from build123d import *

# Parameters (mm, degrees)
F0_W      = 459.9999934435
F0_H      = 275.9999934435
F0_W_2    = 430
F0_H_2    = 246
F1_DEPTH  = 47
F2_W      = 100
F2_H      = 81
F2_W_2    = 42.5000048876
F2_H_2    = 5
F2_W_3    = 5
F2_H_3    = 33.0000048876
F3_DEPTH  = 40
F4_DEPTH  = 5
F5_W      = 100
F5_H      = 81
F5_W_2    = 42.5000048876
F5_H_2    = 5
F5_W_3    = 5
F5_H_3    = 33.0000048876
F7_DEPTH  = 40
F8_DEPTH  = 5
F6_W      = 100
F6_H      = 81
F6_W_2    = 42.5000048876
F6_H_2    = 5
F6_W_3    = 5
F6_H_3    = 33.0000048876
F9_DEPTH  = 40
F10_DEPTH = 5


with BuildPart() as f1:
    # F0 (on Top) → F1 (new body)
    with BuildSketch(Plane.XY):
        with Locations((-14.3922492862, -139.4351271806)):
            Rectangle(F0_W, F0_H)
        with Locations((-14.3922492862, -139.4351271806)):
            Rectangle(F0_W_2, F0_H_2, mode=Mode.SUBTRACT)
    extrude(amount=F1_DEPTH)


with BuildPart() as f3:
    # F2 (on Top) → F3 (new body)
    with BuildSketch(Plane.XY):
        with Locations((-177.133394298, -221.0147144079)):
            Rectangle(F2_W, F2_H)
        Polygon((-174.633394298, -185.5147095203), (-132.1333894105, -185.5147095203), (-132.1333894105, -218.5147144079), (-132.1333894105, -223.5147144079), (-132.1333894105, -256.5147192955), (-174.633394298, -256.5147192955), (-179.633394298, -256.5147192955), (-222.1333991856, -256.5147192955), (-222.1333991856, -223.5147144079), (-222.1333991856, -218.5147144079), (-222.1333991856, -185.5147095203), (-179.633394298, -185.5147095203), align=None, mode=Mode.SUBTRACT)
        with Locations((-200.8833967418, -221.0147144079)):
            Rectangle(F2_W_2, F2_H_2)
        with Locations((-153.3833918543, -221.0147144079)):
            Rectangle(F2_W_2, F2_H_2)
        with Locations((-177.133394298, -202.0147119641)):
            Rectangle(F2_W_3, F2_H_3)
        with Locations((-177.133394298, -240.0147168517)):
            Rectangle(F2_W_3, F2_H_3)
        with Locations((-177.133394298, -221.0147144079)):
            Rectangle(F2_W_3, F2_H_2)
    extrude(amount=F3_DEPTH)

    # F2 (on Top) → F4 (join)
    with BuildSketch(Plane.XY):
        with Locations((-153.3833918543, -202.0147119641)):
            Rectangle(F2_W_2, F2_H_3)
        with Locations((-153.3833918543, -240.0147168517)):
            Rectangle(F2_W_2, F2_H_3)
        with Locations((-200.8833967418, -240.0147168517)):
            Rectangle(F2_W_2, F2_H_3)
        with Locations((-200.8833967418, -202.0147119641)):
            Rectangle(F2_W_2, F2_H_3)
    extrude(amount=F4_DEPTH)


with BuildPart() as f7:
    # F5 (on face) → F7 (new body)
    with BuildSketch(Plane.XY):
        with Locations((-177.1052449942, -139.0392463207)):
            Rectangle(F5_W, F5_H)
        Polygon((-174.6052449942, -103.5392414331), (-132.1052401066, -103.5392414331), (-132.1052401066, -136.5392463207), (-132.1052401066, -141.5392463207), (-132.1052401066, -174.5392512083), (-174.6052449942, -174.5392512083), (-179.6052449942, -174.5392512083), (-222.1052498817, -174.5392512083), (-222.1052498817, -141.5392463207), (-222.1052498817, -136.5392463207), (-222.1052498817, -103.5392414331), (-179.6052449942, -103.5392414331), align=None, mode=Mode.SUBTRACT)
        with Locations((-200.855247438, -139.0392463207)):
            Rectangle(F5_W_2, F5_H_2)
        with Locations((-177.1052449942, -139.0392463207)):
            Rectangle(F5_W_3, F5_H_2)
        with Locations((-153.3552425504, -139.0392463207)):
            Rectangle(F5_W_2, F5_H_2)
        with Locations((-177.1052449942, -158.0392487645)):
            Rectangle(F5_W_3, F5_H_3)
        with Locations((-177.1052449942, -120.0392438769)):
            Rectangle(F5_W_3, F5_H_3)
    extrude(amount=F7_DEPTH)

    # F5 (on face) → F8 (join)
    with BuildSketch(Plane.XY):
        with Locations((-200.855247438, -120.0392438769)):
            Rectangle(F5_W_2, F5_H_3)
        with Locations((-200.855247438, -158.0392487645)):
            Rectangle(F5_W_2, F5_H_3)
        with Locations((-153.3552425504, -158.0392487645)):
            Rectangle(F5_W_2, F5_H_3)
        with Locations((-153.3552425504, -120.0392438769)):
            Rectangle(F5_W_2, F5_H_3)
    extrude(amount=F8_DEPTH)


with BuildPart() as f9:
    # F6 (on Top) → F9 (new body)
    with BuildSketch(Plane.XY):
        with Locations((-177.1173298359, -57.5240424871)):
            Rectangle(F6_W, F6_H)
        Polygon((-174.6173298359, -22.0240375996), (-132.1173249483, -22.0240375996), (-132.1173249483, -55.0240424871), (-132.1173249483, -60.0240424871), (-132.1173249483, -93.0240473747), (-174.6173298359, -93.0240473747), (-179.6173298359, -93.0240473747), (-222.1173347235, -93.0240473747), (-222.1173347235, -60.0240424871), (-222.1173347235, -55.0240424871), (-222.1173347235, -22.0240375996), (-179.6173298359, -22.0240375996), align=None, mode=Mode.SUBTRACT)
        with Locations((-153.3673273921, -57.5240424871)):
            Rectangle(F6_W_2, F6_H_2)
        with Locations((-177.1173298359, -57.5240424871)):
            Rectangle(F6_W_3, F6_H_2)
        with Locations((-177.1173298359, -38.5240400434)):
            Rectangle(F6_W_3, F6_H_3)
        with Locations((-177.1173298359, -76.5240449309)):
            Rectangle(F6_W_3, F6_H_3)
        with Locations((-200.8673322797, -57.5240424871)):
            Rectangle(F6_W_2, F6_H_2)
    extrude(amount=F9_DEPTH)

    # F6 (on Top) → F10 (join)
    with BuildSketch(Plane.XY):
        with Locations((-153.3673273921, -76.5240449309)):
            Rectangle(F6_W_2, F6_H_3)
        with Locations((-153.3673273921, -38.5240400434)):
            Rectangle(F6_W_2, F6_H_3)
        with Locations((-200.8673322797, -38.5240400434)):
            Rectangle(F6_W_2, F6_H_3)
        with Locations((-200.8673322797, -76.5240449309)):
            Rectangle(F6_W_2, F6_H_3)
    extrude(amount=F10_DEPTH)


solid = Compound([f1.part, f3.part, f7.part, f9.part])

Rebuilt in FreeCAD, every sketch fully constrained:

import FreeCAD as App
import Part
import Sketcher
from FreeCAD import Vector

doc = App.newDocument("Part")
body = doc.addObject("PartDesign::Body", "Body")

sketch1 = body.newObject("Sketcher::SketchObject", "Sketch")
sketch1.AttachmentSupport = (doc.getObject("XY_Plane"), [""])
sketch1.MapMode = "FlatFace"
sketch1.addGeometry([
    Part.LineSegment(Vector(-244, -1, 0), Vector(-244, -277, 0)),
    Part.LineSegment(Vector(-244, -277, 0), Vector(216, -277, 0)),
    Part.LineSegment(Vector(216, -277, 0), Vector(216, -1, 0)),
    Part.LineSegment(Vector(216, -1, 0), Vector(-244, -1, 0)),
    Part.LineSegment(Vector(201, -262, 0), Vector(-229, -262, 0)),
    Part.LineSegment(Vector(-229, -262, 0), Vector(-229, -16, 0)),
    Part.LineSegment(Vector(-229, -16, 0), Vector(201, -16, 0)),
    Part.LineSegment(Vector(201, -16, 0), Vector(201, -262, 0)),
], False)
sketch1.addConstraint([
    Sketcher.Constraint("Coincident", 0, 2, 1, 1),
    Sketcher.Constraint("Coincident", 1, 2, 2, 1),
    Sketcher.Constraint("Coincident", 2, 2, 3, 1),
    Sketcher.Constraint("Coincident", 3, 2, 0, 1),
    Sketcher.Constraint("Coincident", 4, 2, 5, 1),
    Sketcher.Constraint("Coincident", 5, 2, 6, 1),
    Sketcher.Constraint("Coincident", 6, 2, 7, 1),
    Sketcher.Constraint("Coincident", 7, 2, 4, 1),
    Sketcher.Constraint("Vertical", 0),
    Sketcher.Constraint("Horizontal", 1),
    Sketcher.Constraint("Vertical", 2),
    Sketcher.Constraint("Horizontal", 3),
    Sketcher.Constraint("Horizontal", 4),
    Sketcher.Constraint("Vertical", 5),
    Sketcher.Constraint("Horizontal", 6),
    Sketcher.Constraint("Vertical", 7),
    Sketcher.Constraint("DistanceX", 4, 2, 4, 1, 430.0),
    Sketcher.Constraint("DistanceY", 5, 1, 5, 2, 246.0),
    Sketcher.Constraint("DistanceX", 1, 1, 1, 2, 459.999993),
    Sketcher.Constraint("DistanceY", 0, 2, 0, 1, 275.999993),
    Sketcher.Constraint("DistanceY", 2, 2, -1, 1, 1.43513),
    Sketcher.Constraint("DistanceX", 4, 2, -1, 1, 229.392249),
    Sketcher.Constraint("DistanceX", 0, 2, -1, 1, 244.392246),
    Sketcher.Constraint("DistanceY", 4, 2, -1, 1, 262.435127),
])
pad1 = body.newObject("PartDesign::Pad", "Pad")
pad1.Profile = sketch1
pad1.Length = 47
body2 = doc.addObject("PartDesign::Body", "Body001")

sketch2 = body2.newObject("Sketcher::SketchObject", "Sketch001")
sketch2.AttachmentSupport = (doc.getObject("XY_Plane001"), [""])
sketch2.MapMode = "FlatFace"
sketch2.addGeometry([
    Part.LineSegment(Vector(-227, -181, 0), Vector(-227, -262, 0)),
    Part.LineSegment(Vector(-227, -262, 0), Vector(-127, -262, 0)),
    Part.LineSegment(Vector(-127, -262, 0), Vector(-127, -181, 0)),
    Part.LineSegment(Vector(-127, -181, 0), Vector(-227, -181, 0)),
    Part.LineSegment(Vector(-222, -224, 0), Vector(-180, -224, 0)),
    Part.LineSegment(Vector(-180, -224, 0), Vector(-180, -257, 0)),
    Part.LineSegment(Vector(-180, -257, 0), Vector(-222, -257, 0)),
    Part.LineSegment(Vector(-222, -257, 0), Vector(-222, -224, 0)),
    Part.LineSegment(Vector(-175, -257, 0), Vector(-175, -224, 0)),
    Part.LineSegment(Vector(-175, -224, 0), Vector(-132, -224, 0)),
    Part.LineSegment(Vector(-132, -224, 0), Vector(-132, -257, 0)),
    Part.LineSegment(Vector(-132, -257, 0), Vector(-175, -257, 0)),
    Part.LineSegment(Vector(-180, -219, 0), Vector(-222, -219, 0)),
    Part.LineSegment(Vector(-222, -219, 0), Vector(-222, -186, 0)),
    Part.LineSegment(Vector(-222, -186, 0), Vector(-180, -186, 0)),
    Part.LineSegment(Vector(-180, -186, 0), Vector(-180, -219, 0)),
    Part.LineSegment(Vector(-132, -219, 0), Vector(-175, -219, 0)),
    Part.LineSegment(Vector(-175, -219, 0), Vector(-175, -186, 0)),
    Part.LineSegment(Vector(-175, -186, 0), Vector(-132, -186, 0)),
    Part.LineSegment(Vector(-132, -186, 0), Vector(-132, -219, 0)),
], False)
sketch2.addConstraint([
    Sketcher.Constraint("Coincident", 0, 2, 1, 1),
    Sketcher.Constraint("Coincident", 1, 2, 2, 1),
    Sketcher.Constraint("Coincident", 2, 2, 3, 1),
    Sketcher.Constraint("Coincident", 3, 2, 0, 1),
    Sketcher.Constraint("Coincident", 4, 2, 5, 1),
    Sketcher.Constraint("Coincident", 5, 2, 6, 1),
    Sketcher.Constraint("Coincident", 6, 2, 7, 1),
    Sketcher.Constraint("Coincident", 7, 2, 4, 1),
    Sketcher.Constraint("Coincident", 8, 2, 9, 1),
    Sketcher.Constraint("Coincident", 9, 2, 10, 1),
    Sketcher.Constraint("Coincident", 10, 2, 11, 1),
    Sketcher.Constraint("Coincident", 11, 2, 8, 1),
    Sketcher.Constraint("Coincident", 12, 2, 13, 1),
    Sketcher.Constraint("Coincident", 13, 2, 14, 1),
    Sketcher.Constraint("Coincident", 14, 2, 15, 1),
    Sketcher.Constraint("Coincident", 15, 2, 12, 1),
    Sketcher.Constraint("Coincident", 16, 2, 17, 1),
    Sketcher.Constraint("Coincident", 17, 2, 18, 1),
    Sketcher.Constraint("Coincident", 18, 2, 19, 1),
    Sketcher.Constraint("Coincident", 19, 2, 16, 1),
    Sketcher.Constraint("Vertical", 0),
    Sketcher.Constraint("Horizontal", 1),
    Sketcher.Constraint("Vertical", 2),
    Sketcher.Constraint("Horizontal", 3),
    Sketcher.Constraint("Horizontal", 4),
    Sketcher.Constraint("Vertical", 5),
    Sketcher.Constraint("Horizontal", 6),
    Sketcher.Constraint("Vertical", 7),
    Sketcher.Constraint("Vertical", 8),
    Sketcher.Constraint("Horizontal", 9),
    Sketcher.Constraint("Vertical", 10),
    Sketcher.Constraint("Horizontal", 11),
    Sketcher.Constraint("Horizontal", 12),
    Sketcher.Constraint("Vertical", 13),
    Sketcher.Constraint("Horizontal", 14),
    Sketcher.Constraint("Vertical", 15),
    Sketcher.Constraint("Horizontal", 16),
    Sketcher.Constraint("Vertical", 17),
    Sketcher.Constraint("Horizontal", 18),
    Sketcher.Constraint("Vertical", 19),
    Sketcher.Constraint("Horizontal", 7, 2, 8, 2),
    Sketcher.Constraint("Horizontal", 6, 2, 10, 2),
    Sketcher.Constraint("Horizontal", 15, 2, 16, 2),
    Sketcher.Constraint("Horizontal", 14, 2, 17, 2),
    Sketcher.Constraint("Vertical", 7, 2, 12, 2),
    Sketcher.Constraint("Vertical", 5, 2, 14, 2),
    Sketcher.Constraint("Vertical", 11, 2, 16, 2),
    Sketcher.Constraint("Vertical", 10, 2, 18, 2),
    Sketcher.Constraint("Equal", 6, 9),
    Sketcher.Constraint("Equal", 10, 13),
    Sketcher.Constraint("DistanceX", 1, 1, 1, 2, 100.0),
    Sketcher.Constraint("DistanceY", 0, 2, 0, 1, 81.0),
    Sketcher.Constraint("DistanceY", 0, 2, 4, 2, 38.0),
    Sketcher.Constraint("DistanceX", 4, 2, 8, 2, 5.0),
    Sketcher.Constraint("DistanceY", 7, 2, 12, 2, 5.0),
    Sketcher.Constraint("DistanceX", 0, 2, 4, 2, 47.5),
    Sketcher.Constraint("DistanceX", 6, 2, -1, 1, 222.133399),
    Sketcher.Constraint("DistanceX", 4, 1, 4, 2, 42.500005),
    Sketcher.Constraint("DistanceY", 5, 2, 5, 1, 33.000005),
    Sketcher.Constraint("DistanceY", 5, 2, -1, 1, 256.514719),
])
pad2 = body2.newObject("PartDesign::Pad", "Pad001")
pad2.Profile = sketch2
pad2.Length = 40

sketch3 = body2.newObject("Sketcher::SketchObject", "Sketch002")
sketch3.AttachmentSupport = (doc.getObject("XY_Plane001"), [""])
sketch3.MapMode = "FlatFace"
sketch3.addGeometry([
    Part.LineSegment(Vector(-175, -186, 0), Vector(-175, -219, 0)),
    Part.LineSegment(Vector(-175, -219, 0), Vector(-132, -219, 0)),
    Part.LineSegment(Vector(-132, -219, 0), Vector(-132, -186, 0)),
    Part.LineSegment(Vector(-132, -186, 0), Vector(-175, -186, 0)),
    Part.LineSegment(Vector(-175, -224, 0), Vector(-175, -257, 0)),
    Part.LineSegment(Vector(-175, -257, 0), Vector(-132, -257, 0)),
    Part.LineSegment(Vector(-132, -257, 0), Vector(-132, -224, 0)),
    Part.LineSegment(Vector(-132, -224, 0), Vector(-175, -224, 0)),
    Part.LineSegment(Vector(-222, -224, 0), Vector(-222, -257, 0)),
    Part.LineSegment(Vector(-222, -257, 0), Vector(-180, -257, 0)),
    Part.LineSegment(Vector(-180, -257, 0), Vector(-180, -224, 0)),
    Part.LineSegment(Vector(-180, -224, 0), Vector(-222, -224, 0)),
    Part.LineSegment(Vector(-222, -186, 0), Vector(-222, -219, 0)),
    Part.LineSegment(Vector(-222, -219, 0), Vector(-180, -219, 0)),
    Part.LineSegment(Vector(-180, -219, 0), Vector(-180, -186, 0)),
    Part.LineSegment(Vector(-180, -186, 0), Vector(-222, -186, 0)),
], False)
sketch3.addConstraint([
    Sketcher.Constraint("Coincident", 0, 2, 1, 1),
    Sketcher.Constraint("Coincident", 1, 2, 2, 1),
    Sketcher.Constraint("Coincident", 2, 2, 3, 1),
    Sketcher.Constraint("Coincident", 3, 2, 0, 1),
    Sketcher.Constraint("Coincident", 4, 2, 5, 1),
    Sketcher.Constraint("Coincident", 5, 2, 6, 1),
    Sketcher.Constraint("Coincident", 6, 2, 7, 1),
    Sketcher.Constraint("Coincident", 7, 2, 4, 1),
    Sketcher.Constraint("Coincident", 8, 2, 9, 1),
    Sketcher.Constraint("Coincident", 9, 2, 10, 1),
    Sketcher.Constraint("Coincident", 10, 2, 11, 1),
    Sketcher.Constraint("Coincident", 11, 2, 8, 1),
    Sketcher.Constraint("Coincident", 12, 2, 13, 1),
    Sketcher.Constraint("Coincident", 13, 2, 14, 1),
    Sketcher.Constraint("Coincident", 14, 2, 15, 1),
    Sketcher.Constraint("Coincident", 15, 2, 12, 1),
    Sketcher.Constraint("Vertical", 0),
    Sketcher.Constraint("Horizontal", 1),
    Sketcher.Constraint("Vertical", 2),
    Sketcher.Constraint("Horizontal", 3),
    Sketcher.Constraint("Vertical", 4),
    Sketcher.Constraint("Horizontal", 5),
    Sketcher.Constraint("Vertical", 6),
    Sketcher.Constraint("Horizontal", 7),
    Sketcher.Constraint("Vertical", 8),
    Sketcher.Constraint("Horizontal", 9),
    Sketcher.Constraint("Vertical", 10),
    Sketcher.Constraint("Horizontal", 11),
    Sketcher.Constraint("Vertical", 12),
    Sketcher.Constraint("Horizontal", 13),
    Sketcher.Constraint("Vertical", 14),
    Sketcher.Constraint("Horizontal", 15),
    Sketcher.Constraint("Horizontal", 5, 2, 8, 2),
    Sketcher.Constraint("Horizontal", 7, 2, 10, 2),
    Sketcher.Constraint("Horizontal", 1, 2, 12, 2),
    Sketcher.Constraint("Horizontal", 3, 2, 14, 2),
    Sketcher.Constraint("Vertical", 3, 2, 4, 2),
    Sketcher.Constraint("Vertical", 2, 2, 5, 2),
    Sketcher.Constraint("Vertical", 11, 2, 12, 2),
    Sketcher.Constraint("Vertical", 10, 2, 13, 2),
    Sketcher.Constraint("Equal", 7, 9),
    Sketcher.Constraint("Equal", 2, 4),
    Sketcher.Constraint("DistanceY", 6, 2, 1, 2, 5.0),
    Sketcher.Constraint("DistanceX", 9, 2, 4, 2, 5.0),
    Sketcher.Constraint("DistanceX", 8, 2, -1, 1, 222.133399),
    Sketcher.Constraint("DistanceX", 1, 1, 1, 2, 42.500005),
    Sketcher.Constraint("DistanceY", 0, 2, 0, 1, 33.000005),
    Sketcher.Constraint("DistanceY", 2, 2, -1, 1, 185.51471),
])
pad3 = body2.newObject("PartDesign::Pad", "Pad002")
pad3.Profile = sketch3
pad3.Length = 5
body3 = doc.addObject("PartDesign::Body", "Body002")

sketch4 = body3.newObject("Sketcher::SketchObject", "Sketch003")
sketch4.AttachmentSupport = (doc.getObject("XY_Plane002"), [""])
sketch4.MapMode = "FlatFace"
sketch4.addGeometry([
    Part.LineSegment(Vector(-227, -99, 0), Vector(-227, -180, 0)),
    Part.LineSegment(Vector(-227, -180, 0), Vector(-127, -180, 0)),
    Part.LineSegment(Vector(-127, -180, 0), Vector(-127, -99, 0)),
    Part.LineSegment(Vector(-127, -99, 0), Vector(-227, -99, 0)),
    Part.LineSegment(Vector(-222, -104, 0), Vector(-180, -104, 0)),
    Part.LineSegment(Vector(-180, -104, 0), Vector(-180, -137, 0)),
    Part.LineSegment(Vector(-180, -137, 0), Vector(-222, -137, 0)),
    Part.LineSegment(Vector(-222, -137, 0), Vector(-222, -104, 0)),
    Part.LineSegment(Vector(-175, -104, 0), Vector(-132, -104, 0)),
    Part.LineSegment(Vector(-132, -104, 0), Vector(-132, -137, 0)),
    Part.LineSegment(Vector(-132, -137, 0), Vector(-175, -137, 0)),
    Part.LineSegment(Vector(-175, -137, 0), Vector(-175, -104, 0)),
    Part.LineSegment(Vector(-132, -142, 0), Vector(-132, -175, 0)),
    Part.LineSegment(Vector(-132, -175, 0), Vector(-175, -175, 0)),
    Part.LineSegment(Vector(-175, -175, 0), Vector(-175, -142, 0)),
    Part.LineSegment(Vector(-175, -142, 0), Vector(-132, -142, 0)),
    Part.LineSegment(Vector(-180, -175, 0), Vector(-222, -175, 0)),
    Part.LineSegment(Vector(-222, -175, 0), Vector(-222, -142, 0)),
    Part.LineSegment(Vector(-222, -142, 0), Vector(-180, -142, 0)),
    Part.LineSegment(Vector(-180, -142, 0), Vector(-180, -175, 0)),
], False)
sketch4.addConstraint([
    Sketcher.Constraint("Coincident", 0, 2, 1, 1),
    Sketcher.Constraint("Coincident", 1, 2, 2, 1),
    Sketcher.Constraint("Coincident", 2, 2, 3, 1),
    Sketcher.Constraint("Coincident", 3, 2, 0, 1),
    Sketcher.Constraint("Coincident", 4, 2, 5, 1),
    Sketcher.Constraint("Coincident", 5, 2, 6, 1),
    Sketcher.Constraint("Coincident", 6, 2, 7, 1),
    Sketcher.Constraint("Coincident", 7, 2, 4, 1),
    Sketcher.Constraint("Coincident", 8, 2, 9, 1),
    Sketcher.Constraint("Coincident", 9, 2, 10, 1),
    Sketcher.Constraint("Coincident", 10, 2, 11, 1),
    Sketcher.Constraint("Coincident", 11, 2, 8, 1),
    Sketcher.Constraint("Coincident", 12, 2, 13, 1),
    Sketcher.Constraint("Coincident", 13, 2, 14, 1),
    Sketcher.Constraint("Coincident", 14, 2, 15, 1),
    Sketcher.Constraint("Coincident", 15, 2, 12, 1),
    Sketcher.Constraint("Coincident", 16, 2, 17, 1),
    Sketcher.Constraint("Coincident", 17, 2, 18, 1),
    Sketcher.Constraint("Coincident", 18, 2, 19, 1),
    Sketcher.Constraint("Coincident", 19, 2, 16, 1),
    Sketcher.Constraint("Vertical", 0),
    Sketcher.Constraint("Horizontal", 1),
    Sketcher.Constraint("Vertical", 2),
    Sketcher.Constraint("Horizontal", 3),
    Sketcher.Constraint("Horizontal", 4),
    Sketcher.Constraint("Vertical", 5),
    Sketcher.Constraint("Horizontal", 6),
    Sketcher.Constraint("Vertical", 7),
    Sketcher.Constraint("Horizontal", 8),
    Sketcher.Constraint("Vertical", 9),
    Sketcher.Constraint("Horizontal", 10),
    Sketcher.Constraint("Vertical", 11),
    Sketcher.Constraint("Vertical", 12),
    Sketcher.Constraint("Horizontal", 13),
    Sketcher.Constraint("Vertical", 14),
    Sketcher.Constraint("Horizontal", 15),
    Sketcher.Constraint("Horizontal", 16),
    Sketcher.Constraint("Vertical", 17),
    Sketcher.Constraint("Horizontal", 18),
    Sketcher.Constraint("Vertical", 19),
    Sketcher.Constraint("Horizontal", 7, 2, 8, 2),
    Sketcher.Constraint("Horizontal", 6, 2, 9, 2),
    Sketcher.Constraint("Horizontal", 13, 2, 16, 2),
    Sketcher.Constraint("Horizontal", 15, 2, 17, 2),
    Sketcher.Constraint("Vertical", 9, 2, 12, 2),
    Sketcher.Constraint("Vertical", 11, 2, 13, 2),
    Sketcher.Constraint("Vertical", 7, 2, 16, 2),
    Sketcher.Constraint("Vertical", 5, 2, 18, 2),
    Sketcher.Constraint("Equal", 6, 8),
    Sketcher.Constraint("Equal", 11, 12),
    Sketcher.Constraint("DistanceX", 1, 1, 1, 2, 100.0),
    Sketcher.Constraint("DistanceY", 0, 2, 0, 1, 81.0),
    Sketcher.Constraint("DistanceY", 5, 2, 3, 2, 38.0),
    Sketcher.Constraint("DistanceX", 5, 2, 10, 2, 5.0),
    Sketcher.Constraint("DistanceY", 14, 2, 10, 2, 5.0),
    Sketcher.Constraint("DistanceX", 3, 2, 4, 2, 47.5),
    Sketcher.Constraint("DistanceX", 4, 1, 4, 2, 42.500005),
    Sketcher.Constraint("DistanceY", 5, 2, 5, 1, 33.000005),
    Sketcher.Constraint("DistanceY", 4, 2, -1, 1, 103.539241),
    Sketcher.Constraint("DistanceX", 6, 2, -1, 1, 222.10525),
])
pad4 = body3.newObject("PartDesign::Pad", "Pad003")
pad4.Profile = sketch4
pad4.Length = 40

sketch5 = body3.newObject("Sketcher::SketchObject", "Sketch004")
sketch5.AttachmentSupport = (doc.getObject("XY_Plane002"), [""])
sketch5.MapMode = "FlatFace"
sketch5.addGeometry([
    Part.LineSegment(Vector(-222, -104, 0), Vector(-222, -137, 0)),
    Part.LineSegment(Vector(-222, -137, 0), Vector(-180, -137, 0)),
    Part.LineSegment(Vector(-180, -137, 0), Vector(-180, -104, 0)),
    Part.LineSegment(Vector(-180, -104, 0), Vector(-222, -104, 0)),
    Part.LineSegment(Vector(-222, -142, 0), Vector(-222, -175, 0)),
    Part.LineSegment(Vector(-222, -175, 0), Vector(-180, -175, 0)),
    Part.LineSegment(Vector(-180, -175, 0), Vector(-180, -142, 0)),
    Part.LineSegment(Vector(-180, -142, 0), Vector(-222, -142, 0)),
    Part.LineSegment(Vector(-175, -142, 0), Vector(-175, -175, 0)),
    Part.LineSegment(Vector(-175, -175, 0), Vector(-132, -175, 0)),
    Part.LineSegment(Vector(-132, -175, 0), Vector(-132, -142, 0)),
    Part.LineSegment(Vector(-132, -142, 0), Vector(-175, -142, 0)),
    Part.LineSegment(Vector(-175, -104, 0), Vector(-175, -137, 0)),
    Part.LineSegment(Vector(-175, -137, 0), Vector(-132, -137, 0)),
    Part.LineSegment(Vector(-132, -137, 0), Vector(-132, -104, 0)),
    Part.LineSegment(Vector(-132, -104, 0), Vector(-175, -104, 0)),
], False)
sketch5.addConstraint([
    Sketcher.Constraint("Coincident", 0, 2, 1, 1),
    Sketcher.Constraint("Coincident", 1, 2, 2, 1),
    Sketcher.Constraint("Coincident", 2, 2, 3, 1),
    Sketcher.Constraint("Coincident", 3, 2, 0, 1),
    Sketcher.Constraint("Coincident", 4, 2, 5, 1),
    Sketcher.Constraint("Coincident", 5, 2, 6, 1),
    Sketcher.Constraint("Coincident", 6, 2, 7, 1),
    Sketcher.Constraint("Coincident", 7, 2, 4, 1),
    Sketcher.Constraint("Coincident", 8, 2, 9, 1),
    Sketcher.Constraint("Coincident", 9, 2, 10, 1),
    Sketcher.Constraint("Coincident", 10, 2, 11, 1),
    Sketcher.Constraint("Coincident", 11, 2, 8, 1),
    Sketcher.Constraint("Coincident", 12, 2, 13, 1),
    Sketcher.Constraint("Coincident", 13, 2, 14, 1),
    Sketcher.Constraint("Coincident", 14, 2, 15, 1),
    Sketcher.Constraint("Coincident", 15, 2, 12, 1),
    Sketcher.Constraint("Vertical", 0),
    Sketcher.Constraint("Horizontal", 1),
    Sketcher.Constraint("Vertical", 2),
    Sketcher.Constraint("Horizontal", 3),
    Sketcher.Constraint("Vertical", 4),
    Sketcher.Constraint("Horizontal", 5),
    Sketcher.Constraint("Vertical", 6),
    Sketcher.Constraint("Horizontal", 7),
    Sketcher.Constraint("Vertical", 8),
    Sketcher.Constraint("Horizontal", 9),
    Sketcher.Constraint("Vertical", 10),
    Sketcher.Constraint("Horizontal", 11),
    Sketcher.Constraint("Vertical", 12),
    Sketcher.Constraint("Horizontal", 13),
    Sketcher.Constraint("Vertical", 14),
    Sketcher.Constraint("Horizontal", 15),
    Sketcher.Constraint("Horizontal", 5, 2, 8, 2),
    Sketcher.Constraint("Horizontal", 7, 2, 10, 2),
    Sketcher.Constraint("Horizontal", 1, 2, 12, 2),
    Sketcher.Constraint("Horizontal", 3, 2, 14, 2),
    Sketcher.Constraint("Vertical", 3, 2, 4, 2),
    Sketcher.Constraint("Vertical", 2, 2, 5, 2),
    Sketcher.Constraint("Vertical", 11, 2, 12, 2),
    Sketcher.Constraint("Vertical", 10, 2, 13, 2),
    Sketcher.Constraint("Equal", 7, 9),
    Sketcher.Constraint("Equal", 2, 4),
    Sketcher.Constraint("DistanceY", 6, 2, 1, 2, 5.0),
    Sketcher.Constraint("DistanceX", 5, 2, 8, 2, 5.0),
    Sketcher.Constraint("DistanceX", 1, 1, 1, 2, 42.500005),
    Sketcher.Constraint("DistanceY", 0, 2, 0, 1, 33.000005),
    Sketcher.Constraint("DistanceX", 0, 2, -1, 1, 222.10525),
    Sketcher.Constraint("DistanceY", 2, 2, -1, 1, 103.539241),
])
pad5 = body3.newObject("PartDesign::Pad", "Pad004")
pad5.Profile = sketch5
pad5.Length = 5
body4 = doc.addObject("PartDesign::Body", "Body003")

sketch6 = body4.newObject("Sketcher::SketchObject", "Sketch005")
sketch6.AttachmentSupport = (doc.getObject("XY_Plane003"), [""])
sketch6.MapMode = "FlatFace"
sketch6.addGeometry([
    Part.LineSegment(Vector(-227, -17, 0), Vector(-227, -98, 0)),
    Part.LineSegment(Vector(-227, -98, 0), Vector(-127, -98, 0)),
    Part.LineSegment(Vector(-127, -98, 0), Vector(-127, -17, 0)),
    Part.LineSegment(Vector(-127, -17, 0), Vector(-227, -17, 0)),
    Part.LineSegment(Vector(-222, -22, 0), Vector(-180, -22, 0)),
    Part.LineSegment(Vector(-180, -22, 0), Vector(-180, -55, 0)),
    Part.LineSegment(Vector(-180, -55, 0), Vector(-222, -55, 0)),
    Part.LineSegment(Vector(-222, -55, 0), Vector(-222, -22, 0)),
    Part.LineSegment(Vector(-180, -60, 0), Vector(-180, -93, 0)),
    Part.LineSegment(Vector(-180, -93, 0), Vector(-222, -93, 0)),
    Part.LineSegment(Vector(-222, -93, 0), Vector(-222, -60, 0)),
    Part.LineSegment(Vector(-222, -60, 0), Vector(-180, -60, 0)),
    Part.LineSegment(Vector(-175, -60, 0), Vector(-132, -60, 0)),
    Part.LineSegment(Vector(-132, -60, 0), Vector(-132, -93, 0)),
    Part.LineSegment(Vector(-132, -93, 0), Vector(-175, -93, 0)),
    Part.LineSegment(Vector(-175, -93, 0), Vector(-175, -60, 0)),
    Part.LineSegment(Vector(-175, -22, 0), Vector(-132, -22, 0)),
    Part.LineSegment(Vector(-132, -22, 0), Vector(-132, -55, 0)),
    Part.LineSegment(Vector(-132, -55, 0), Vector(-175, -55, 0)),
    Part.LineSegment(Vector(-175, -55, 0), Vector(-175, -22, 0)),
], False)
sketch6.addConstraint([
    Sketcher.Constraint("Coincident", 0, 2, 1, 1),
    Sketcher.Constraint("Coincident", 1, 2, 2, 1),
    Sketcher.Constraint("Coincident", 2, 2, 3, 1),
    Sketcher.Constraint("Coincident", 3, 2, 0, 1),
    Sketcher.Constraint("Coincident", 4, 2, 5, 1),
    Sketcher.Constraint("Coincident", 5, 2, 6, 1),
    Sketcher.Constraint("Coincident", 6, 2, 7, 1),
    Sketcher.Constraint("Coincident", 7, 2, 4, 1),
    Sketcher.Constraint("Coincident", 8, 2, 9, 1),
    Sketcher.Constraint("Coincident", 9, 2, 10, 1),
    Sketcher.Constraint("Coincident", 10, 2, 11, 1),
    Sketcher.Constraint("Coincident", 11, 2, 8, 1),
    Sketcher.Constraint("Coincident", 12, 2, 13, 1),
    Sketcher.Constraint("Coincident", 13, 2, 14, 1),
    Sketcher.Constraint("Coincident", 14, 2, 15, 1),
    Sketcher.Constraint("Coincident", 15, 2, 12, 1),
    Sketcher.Constraint("Coincident", 16, 2, 17, 1),
    Sketcher.Constraint("Coincident", 17, 2, 18, 1),
    Sketcher.Constraint("Coincident", 18, 2, 19, 1),
    Sketcher.Constraint("Coincident", 19, 2, 16, 1),
    Sketcher.Constraint("Vertical", 0),
    Sketcher.Constraint("Horizontal", 1),
    Sketcher.Constraint("Vertical", 2),
    Sketcher.Constraint("Horizontal", 3),
    Sketcher.Constraint("Horizontal", 4),
    Sketcher.Constraint("Vertical", 5),
    Sketcher.Constraint("Horizontal", 6),
    Sketcher.Constraint("Vertical", 7),
    Sketcher.Constraint("Vertical", 8),
    Sketcher.Constraint("Horizontal", 9),
    Sketcher.Constraint("Vertical", 10),
    Sketcher.Constraint("Horizontal", 11),
    Sketcher.Constraint("Horizontal", 12),
    Sketcher.Constraint("Vertical", 13),
    Sketcher.Constraint("Horizontal", 14),
    Sketcher.Constraint("Vertical", 15),
    Sketcher.Constraint("Horizontal", 16),
    Sketcher.Constraint("Vertical", 17),
    Sketcher.Constraint("Horizontal", 18),
    Sketcher.Constraint("Vertical", 19),
    Sketcher.Constraint("Horizontal", 11, 2, 12, 2),
    Sketcher.Constraint("Horizontal", 9, 2, 13, 2),
    Sketcher.Constraint("Horizontal", 7, 2, 16, 2),
    Sketcher.Constraint("Horizontal", 6, 2, 17, 2),
    Sketcher.Constraint("Vertical", 5, 2, 8, 2),
    Sketcher.Constraint("Vertical", 7, 2, 9, 2),
    Sketcher.Constraint("Vertical", 13, 2, 16, 2),
    Sketcher.Constraint("Vertical", 15, 2, 18, 2),
    Sketcher.Constraint("Equal", 11, 12),
    Sketcher.Constraint("Equal", 7, 8),
    Sketcher.Constraint("DistanceX", 1, 1, 1, 2, 100.0),
    Sketcher.Constraint("DistanceY", 0, 2, 0, 1, 81.0),
    Sketcher.Constraint("DistanceY", 5, 2, 3, 2, 38.0),
    Sketcher.Constraint("DistanceY", 10, 2, 6, 2, 5.0),
    Sketcher.Constraint("DistanceX", 8, 2, 14, 2, 5.0),
    Sketcher.Constraint("DistanceX", 3, 2, 4, 2, 47.5),
    Sketcher.Constraint("DistanceX", 4, 1, 4, 2, 42.500005),
    Sketcher.Constraint("DistanceY", 5, 2, 5, 1, 33.000005),
    Sketcher.Constraint("DistanceX", 0, 2, -1, 1, 227.11733),
    Sketcher.Constraint("DistanceY", 0, 2, -1, 1, 98.024042),
])
pad6 = body4.newObject("PartDesign::Pad", "Pad005")
pad6.Profile = sketch6
pad6.Length = 40

sketch7 = body4.newObject("Sketcher::SketchObject", "Sketch006")
sketch7.AttachmentSupport = (doc.getObject("XY_Plane003"), [""])
sketch7.MapMode = "FlatFace"
sketch7.addGeometry([
    Part.LineSegment(Vector(-175, -60, 0), Vector(-175, -93, 0)),
    Part.LineSegment(Vector(-175, -93, 0), Vector(-132, -93, 0)),
    Part.LineSegment(Vector(-132, -93, 0), Vector(-132, -60, 0)),
    Part.LineSegment(Vector(-132, -60, 0), Vector(-175, -60, 0)),
    Part.LineSegment(Vector(-175, -22, 0), Vector(-175, -55, 0)),
    Part.LineSegment(Vector(-175, -55, 0), Vector(-132, -55, 0)),
    Part.LineSegment(Vector(-132, -55, 0), Vector(-132, -22, 0)),
    Part.LineSegment(Vector(-132, -22, 0), Vector(-175, -22, 0)),
    Part.LineSegment(Vector(-222, -22, 0), Vector(-222, -55, 0)),
    Part.LineSegment(Vector(-222, -55, 0), Vector(-180, -55, 0)),
    Part.LineSegment(Vector(-180, -55, 0), Vector(-180, -22, 0)),
    Part.LineSegment(Vector(-180, -22, 0), Vector(-222, -22, 0)),
    Part.LineSegment(Vector(-222, -60, 0), Vector(-222, -93, 0)),
    Part.LineSegment(Vector(-222, -93, 0), Vector(-180, -93, 0)),
    Part.LineSegment(Vector(-180, -93, 0), Vector(-180, -60, 0)),
    Part.LineSegment(Vector(-180, -60, 0), Vector(-222, -60, 0)),
], False)
sketch7.addConstraint([
    Sketcher.Constraint("Coincident", 0, 2, 1, 1),
    Sketcher.Constraint("Coincident", 1, 2, 2, 1),
    Sketcher.Constraint("Coincident", 2, 2, 3, 1),
    Sketcher.Constraint("Coincident", 3, 2, 0, 1),
    Sketcher.Constraint("Coincident", 4, 2, 5, 1),
    Sketcher.Constraint("Coincident", 5, 2, 6, 1),
    Sketcher.Constraint("Coincident", 6, 2, 7, 1),
    Sketcher.Constraint("Coincident", 7, 2, 4, 1),
    Sketcher.Constraint("Coincident", 8, 2, 9, 1),
    Sketcher.Constraint("Coincident", 9, 2, 10, 1),
    Sketcher.Constraint("Coincident", 10, 2, 11, 1),
    Sketcher.Constraint("Coincident", 11, 2, 8, 1),
    Sketcher.Constraint("Coincident", 12, 2, 13, 1),
    Sketcher.Constraint("Coincident", 13, 2, 14, 1),
    Sketcher.Constraint("Coincident", 14, 2, 15, 1),
    Sketcher.Constraint("Coincident", 15, 2, 12, 1),
    Sketcher.Constraint("Vertical", 0),
    Sketcher.Constraint("Horizontal", 1),
    Sketcher.Constraint("Vertical", 2),
    Sketcher.Constraint("Horizontal", 3),
    Sketcher.Constraint("Vertical", 4),
    Sketcher.Constraint("Horizontal", 5),
    Sketcher.Constraint("Vertical", 6),
    Sketcher.Constraint("Horizontal", 7),
    Sketcher.Constraint("Vertical", 8),
    Sketcher.Constraint("Horizontal", 9),
    Sketcher.Constraint("Vertical", 10),
    Sketcher.Constraint("Horizontal", 11),
    Sketcher.Constraint("Vertical", 12),
    Sketcher.Constraint("Horizontal", 13),
    Sketcher.Constraint("Vertical", 14),
    Sketcher.Constraint("Horizontal", 15),
    Sketcher.Constraint("Horizontal", 5, 2, 8, 2),
    Sketcher.Constraint("Horizontal", 7, 2, 10, 2),
    Sketcher.Constraint("Horizontal", 1, 2, 12, 2),
    Sketcher.Constraint("Horizontal", 3, 2, 14, 2),
    Sketcher.Constraint("Vertical", 3, 2, 4, 2),
    Sketcher.Constraint("Vertical", 2, 2, 5, 2),
    Sketcher.Constraint("Vertical", 11, 2, 12, 2),
    Sketcher.Constraint("Vertical", 10, 2, 13, 2),
    Sketcher.Constraint("Equal", 7, 9),
    Sketcher.Constraint("Equal", 2, 4),
    Sketcher.Constraint("DistanceY", 3, 2, 4, 2, 5.0),
    Sketcher.Constraint("DistanceX", 9, 2, 4, 2, 5.0),
    Sketcher.Constraint("DistanceX", 1, 1, 1, 2, 42.500005),
    Sketcher.Constraint("DistanceY", 0, 2, 0, 1, 33.000005),
    Sketcher.Constraint("DistanceX", 0, 2, -1, 1, 174.61733),
    Sketcher.Constraint("DistanceY", 0, 2, -1, 1, 93.024047),
])
pad7 = body4.newObject("PartDesign::Pad", "Pad006")
pad7.Profile = sketch7
pad7.Length = 5

doc.recompute()
